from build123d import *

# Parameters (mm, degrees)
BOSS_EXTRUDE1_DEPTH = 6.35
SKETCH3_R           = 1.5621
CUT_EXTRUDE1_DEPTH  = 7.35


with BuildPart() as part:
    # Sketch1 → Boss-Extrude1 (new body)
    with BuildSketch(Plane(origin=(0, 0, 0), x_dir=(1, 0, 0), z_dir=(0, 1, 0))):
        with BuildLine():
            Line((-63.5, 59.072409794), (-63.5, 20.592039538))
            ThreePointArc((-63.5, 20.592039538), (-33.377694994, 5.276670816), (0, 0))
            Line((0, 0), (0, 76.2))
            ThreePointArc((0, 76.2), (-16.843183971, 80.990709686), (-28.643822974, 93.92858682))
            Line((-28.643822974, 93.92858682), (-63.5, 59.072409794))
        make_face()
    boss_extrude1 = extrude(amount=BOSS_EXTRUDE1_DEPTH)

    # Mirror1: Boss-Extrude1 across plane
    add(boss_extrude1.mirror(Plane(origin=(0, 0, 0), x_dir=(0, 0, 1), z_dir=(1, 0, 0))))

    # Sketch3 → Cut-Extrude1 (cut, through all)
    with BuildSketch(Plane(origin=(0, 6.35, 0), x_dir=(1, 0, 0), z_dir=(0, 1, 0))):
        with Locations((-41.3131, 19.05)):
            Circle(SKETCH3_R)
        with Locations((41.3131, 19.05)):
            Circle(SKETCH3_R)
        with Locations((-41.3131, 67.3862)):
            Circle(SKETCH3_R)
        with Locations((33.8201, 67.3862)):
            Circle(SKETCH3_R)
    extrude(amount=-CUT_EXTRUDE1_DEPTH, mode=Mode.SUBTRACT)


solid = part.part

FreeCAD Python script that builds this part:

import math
import FreeCAD as App
import Part
import Sketcher
Q = App.Units.Quantity

doc = App.newDocument("Part")
params = doc.addObject("Spreadsheet::Sheet", "Params")
for row, (alias, value) in enumerate([
    ("sketch1_height", "3 in"),
    ("sketch1_radius", "4.26 in"),
    ("pad1_length", "0.25 in"),
    ("sketch2_diameter", "0.123 in"),
], start=1):
    params.set(f"A{row}", alias)
    params.set(f"B{row}", "=" + value)
    params.setAlias(f"B{row}", alias)

body = doc.addObject("PartDesign::Body", "Body")

# Sketch on XZ plane
sketch1 = body.newObject("Sketcher::SketchObject", "Sketch")
sketch1.AttachmentSupport = (doc.getObject("XZ_Plane"), [""])
sketch1.MapMode = "FlatFace"
sketch1.addGeometry(Part.LineSegment(App.Vector(-63.5, -59.07241, 0), App.Vector(-63.5, -20.59204, 0)), False)
sketch1.addGeometry(Part.ArcOfCircle(Part.Circle(App.Vector(0, -108.204, 0), App.Vector(0, 0, 1), 108.204), math.radians(90), math.radians(125.934107)), False)
sketch1.addGeometry(Part.LineSegment(App.Vector(0, 0, 0), App.Vector(0, -76.2, 0)), False)
sketch1.addGeometry(Part.ArcOfCircle(Part.Circle(App.Vector(0, -108.204, 0), App.Vector(0, 0, 1), 32.004), math.radians(90), math.radians(153.509405)), False)
sketch1.addGeometry(Part.LineSegment(App.Vector(-28.643823, -93.928587, 0), App.Vector(-63.5, -59.07241, 0)), False)
sketch1.addConstraint(Sketcher.Constraint("Coincident", 0, 2, 1, 2))
sketch1.addConstraint(Sketcher.Constraint("Coincident", 1, 1, 2, 1))
sketch1.addConstraint(Sketcher.Constraint("Coincident", 2, 2, 3, 1))
sketch1.addConstraint(Sketcher.Constraint("Coincident", 3, 2, 4, 1))
sketch1.addConstraint(Sketcher.Constraint("Coincident", 4, 2, 0, 1))
sketch1.addConstraint(Sketcher.Constraint("Vertical", 0))
sketch1.addConstraint(Sketcher.Constraint("Vertical", 2))
sketch1.addConstraint(Sketcher.Constraint("Coincident", 1, 1, -1, 1))
sketch1.addConstraint(Sketcher.Constraint("Coincident", 3, 3, 1, 3))
sketch1.addConstraint(Sketcher.Constraint("PointOnObject", 1, 3, -2))
sketch1.addConstraint(Sketcher.Constraint("DistanceY", 2, 2, 2, 1, Q("3 in")))
sketch1.addConstraint(Sketcher.Constraint("Radius", 1, Q("4.26 in")))
sketch1.addConstraint(Sketcher.Constraint("Angle", 4, Q("135 deg")))
sketch1.addConstraint(Sketcher.Constraint("DistanceX", 0, 2, -1, 1, Q("2.5 in")))
sketch1.addConstraint(Sketcher.Constraint("DistanceY", 0, 1, 0, 2, 38.48037))
sketch1.setExpression("Constraints[10]", "Params.sketch1_height")
sketch1.setExpression("Constraints[11]", "Params.sketch1_radius")
pad1 = body.newObject("PartDesign::Pad", "Pad")
pad1.Profile = sketch1
pad1.setExpression("Length", "Params.pad1_length")
pad1.Reversed = True
doc.recompute()

mirrored = body.newObject("PartDesign::Mirrored", "Mirrored")
mirrored.Originals = [pad1]
mirrored.MirrorPlane = (doc.getObject("YZ_Plane"), [""])
body.Tip = mirrored

# Sketch on XZ plane
sketch2 = body.newObject("Sketcher::SketchObject", "Sketch001")
sketch2.AttachmentSupport = (doc.getObject("XZ_Plane"), [""])
sketch2.MapMode = "FlatFace"
sketch2.AttachmentOffset = App.Placement(App.Vector(0, 0, -0.25 * 25.4), App.Rotation())
sketch2.addGeometry(Part.Circle(App.Vector(-41.3131, -19.05, 0), App.Vector(0, 0, 1), 1.5621), False)
sketch2.addGeometry(Part.Circle(App.Vector(41.3131, -19.05, 0), App.Vector(0, 0, 1), 1.5621), False)
sketch2.addGeometry(Part.Circle(App.Vector(-41.3131, -67.3862, 0), App.Vector(0, 0, 1), 1.5621), False)
sketch2.addGeometry(Part.Circle(App.Vector(33.8201, -67.3862, 0), App.Vector(0, 0, 1), 1.5621), False)
sketch2.addConstraint(Sketcher.Constraint("Equal", 0, 1))
sketch2.addConstraint(Sketcher.Constraint("Equal", 1, 2))
sketch2.addConstraint(Sketcher.Constraint("Equal", 2, 3))
sketch2.addConstraint(Sketcher.Constraint("Symmetric", 0, 3, 1, 3, -2))
sketch2.addConstraint(Sketcher.Constraint("Horizontal", 2, 3, 3, 3))
sketch2.addConstraint(Sketcher.Constraint("Vertical", 0, 3, 2, 3))
sketch2.addConstraint(Sketcher.Constraint("Diameter", 0, Q("0.123 in")))
sketch2.addConstraint(Sketcher.Constraint("DistanceY", 0, 3, -1, 1, Q("0.75 in")))
sketch2.addConstraint(Sketcher.Constraint("DistanceY", 2, 3, -1, 1, Q("2.653 in")))
sketch2.addConstraint(Sketcher.Constraint("DistanceX", 0, 3, 1, 3, Q("3.253 in")))
sketch2.addConstraint(Sketcher.Constraint("DistanceX", 3, 3, 1, 3, Q("0.295 in")))
sketch2.setExpression("Constraints[6]", "Params.sketch2_diameter")
pocket1 = body.newObject("PartDesign::Pocket", "Pocket")
pocket1.Profile = sketch2
pocket1.Type = "ThroughAll"
pocket1.Reversed = True

doc.recompute()
